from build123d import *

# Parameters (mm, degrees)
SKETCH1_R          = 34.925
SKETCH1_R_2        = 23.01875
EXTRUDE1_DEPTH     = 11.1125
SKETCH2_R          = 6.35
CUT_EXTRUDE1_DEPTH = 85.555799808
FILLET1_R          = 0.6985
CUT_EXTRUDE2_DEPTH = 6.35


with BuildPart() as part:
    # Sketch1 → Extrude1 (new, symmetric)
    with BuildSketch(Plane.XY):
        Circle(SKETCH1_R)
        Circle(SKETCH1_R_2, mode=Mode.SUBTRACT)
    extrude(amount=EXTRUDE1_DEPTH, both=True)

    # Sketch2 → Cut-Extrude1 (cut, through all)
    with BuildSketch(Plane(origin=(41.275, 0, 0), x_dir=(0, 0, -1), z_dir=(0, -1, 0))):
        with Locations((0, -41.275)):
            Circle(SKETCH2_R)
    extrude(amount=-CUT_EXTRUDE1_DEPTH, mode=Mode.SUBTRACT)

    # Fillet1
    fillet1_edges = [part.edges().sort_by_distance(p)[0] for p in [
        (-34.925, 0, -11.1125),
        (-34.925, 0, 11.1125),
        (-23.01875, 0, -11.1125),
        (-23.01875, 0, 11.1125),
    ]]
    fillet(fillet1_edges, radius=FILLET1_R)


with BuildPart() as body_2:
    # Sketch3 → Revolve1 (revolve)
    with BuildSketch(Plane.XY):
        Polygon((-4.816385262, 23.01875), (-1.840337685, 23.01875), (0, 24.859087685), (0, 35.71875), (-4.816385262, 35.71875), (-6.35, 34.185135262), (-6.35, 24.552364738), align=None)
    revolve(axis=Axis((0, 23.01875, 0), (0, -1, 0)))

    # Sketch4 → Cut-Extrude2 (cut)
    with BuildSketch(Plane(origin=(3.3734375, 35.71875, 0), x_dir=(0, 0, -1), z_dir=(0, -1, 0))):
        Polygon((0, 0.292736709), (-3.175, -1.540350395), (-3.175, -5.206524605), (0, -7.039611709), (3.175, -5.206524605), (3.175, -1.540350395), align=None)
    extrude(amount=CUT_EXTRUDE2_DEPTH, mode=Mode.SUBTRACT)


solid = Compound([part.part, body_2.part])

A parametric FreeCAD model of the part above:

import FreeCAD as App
import Part
import Sketcher
from FreeCAD import Vector
Q = App.Units.Quantity


def edges_at(feature, points):
    """Names of the edges that pass closest to the given points."""
    edges = feature.Shape.Edges
    near = lambda p: min(range(len(edges)), key=lambda i: edges[i].distToShape(Part.Vertex(*p))[0])
    return sorted({f"Edge{near(p) + 1}" for p in points})

doc = App.newDocument("Part")
body = doc.addObject("PartDesign::Body", "Body")

sketch1 = body.newObject("Sketcher::SketchObject", "Sketch")
sketch1.AttachmentSupport = (doc.getObject("XY_Plane"), [""])
sketch1.MapMode = "FlatFace"
sketch1.addGeometry(Part.Circle(Vector(0, 0, 0), Vector(0, 0, 1), 35), False)
sketch1.addGeometry(Part.Circle(Vector(0, 0, 0), Vector(0, 0, 1), 23), False)
sketch1.addConstraint(Sketcher.Constraint("Coincident", 0, 3, -1, 1))
sketch1.addConstraint(Sketcher.Constraint("Coincident", 1, 3, -1, 1))
sketch1.addConstraint(Sketcher.Constraint("Diameter", 0, Q("2.75 in")))
sketch1.addConstraint(Sketcher.Constraint("Diameter", 1, Q("1.8125 in")))
pad1 = body.newObject("PartDesign::Pad", "Pad")
pad1.Profile = sketch1
pad1.Length = Q("0.875 in")
pad1.Midplane = True

sketch2 = body.newObject("Sketcher::SketchObject", "Sketch001")
sketch2.AttachmentSupport = (doc.getObject("XZ_Plane"), [""])
sketch2.MapMode = "FlatFace"
sketch2.addGeometry(Part.Circle(Vector(0, 0, 0), Vector(0, 0, 1), 6), False)
sketch2.addConstraint(Sketcher.Constraint("Coincident", 0, 3, -1, 1))
sketch2.addConstraint(Sketcher.Constraint("Diameter", 0, Q("0.5 in")))
pocket1 = body.newObject("PartDesign::Pocket", "Pocket")
pocket1.Profile = sketch2
pocket1.Type = "ThroughAll"
doc.recompute()

fillet = body.newObject("PartDesign::Fillet", "Fillet")
fillet.Base = (pocket1, edges_at(pocket1, [
    (-34.925, 0, -11.113),
    (-34.925, 0, 11.113),
    (-23.019, 0, -11.113),
    (-23.019, 0, 11.113),
]))
fillet.Radius = Q("0.0275 in")
body2 = doc.addObject("PartDesign::Body", "Body001")

sketch3 = body2.newObject("Sketcher::SketchObject", "Sketch002")
sketch3.AttachmentSupport = (doc.getObject("XY_Plane001"), [""])
sketch3.MapMode = "FlatFace"
sketch3.addGeometry(Part.LineSegment(Vector(-4.8, 23, 0), Vector(-1.8, 23, 0)), False)
sketch3.addGeometry(Part.LineSegment(Vector(-1.8, 23, 0), Vector(0, 24.9, 0)), False)
sketch3.addGeometry(Part.LineSegment(Vector(0, 24.9, 0), Vector(0, 35.7, 0)), False)
sketch3.addGeometry(Part.LineSegment(Vector(0, 35.7, 0), Vector(-4.8, 35.7, 0)), False)
sketch3.addGeometry(Part.LineSegment(Vector(-4.8, 35.7, 0), Vector(-6.3, 34.2, 0)), False)
sketch3.addGeometry(Part.LineSegment(Vector(-6.3, 34.2, 0), Vector(-6.3, 24.6, 0)), False)
sketch3.addGeometry(Part.LineSegment(Vector(-6.3, 24.6, 0), Vector(-4.8, 23, 0)), False)
sketch3.addConstraint(Sketcher.Constraint("Coincident", 0, 2, 1, 1))
sketch3.addConstraint(Sketcher.Constraint("Coincident", 1, 2, 2, 1))
sketch3.addConstraint(Sketcher.Constraint("Coincident", 2, 2, 3, 1))
sketch3.addConstraint(Sketcher.Constraint("Coincident", 3, 2, 4, 1))
sketch3.addConstraint(Sketcher.Constraint("Coincident", 4, 2, 5, 1))
sketch3.addConstraint(Sketcher.Constraint("Coincident", 5, 2, 6, 1))
sketch3.addConstraint(Sketcher.Constraint("Coincident", 6, 2, 0, 1))
sketch3.addConstraint(Sketcher.Constraint("Horizontal", 0))
sketch3.addConstraint(Sketcher.Constraint("Vertical", 2))
sketch3.addConstraint(Sketcher.Constraint("Horizontal", 3))
sketch3.addConstraint(Sketcher.Constraint("Vertical", 5))
sketch3.addConstraint(Sketcher.Constraint("PointOnObject", 1, 2, -2))
sketch3.addConstraint(Sketcher.Constraint("Parallel", 1, 4))
sketch3.addConstraint(Sketcher.Constraint("Perpendicular", 4, 6))
sketch3.addConstraint(Sketcher.Constraint("Vertical", 3, 2, 6, 2))
sketch3.addConstraint(Sketcher.Constraint("Equal", 4, 6))
sketch3.addConstraint(Sketcher.Constraint("DistanceY", 0, 2, 2, 2, Q("0.5 in")))
sketch3.addConstraint(Sketcher.Constraint("DistanceX", 4, 2, -1, 1, Q("0.25 in")))
sketch3.addConstraint(Sketcher.Constraint("DistanceY", -1, 1, 0, 2, Q("0.90625 in")))
sketch3.addConstraint(Sketcher.Constraint("DistanceY", 5, 2, 5, 1, Q("9.632771 mm")))
sketch3.addConstraint(Sketcher.Constraint("Distance", 1, Q("2.602631 mm")))
revolution = body2.newObject("PartDesign::Revolution", "Revolution")
revolution.Profile = sketch3
revolution.ReferenceAxis = (sketch3, ["V_Axis"])
revolution.Angle = 360

sketch4 = body2.newObject("Sketcher::SketchObject", "Sketch003")
sketch4.AttachmentSupport = (doc.getObject("XZ_Plane001"), [""])
sketch4.MapMode = "FlatFace"
sketch4.AttachmentOffset = App.Placement(Vector(0, 0, -1.40625 * 25.4), App.Rotation())
sketch4.addGeometry(Part.LineSegment(Vector(3.7, 0, 0), Vector(1.8, 3.2, 0)), False)
sketch4.addGeometry(Part.LineSegment(Vector(1.8, 3.2, 0), Vector(-1.8, 3.2, 0)), False)
sketch4.addGeometry(Part.LineSegment(Vector(-1.8, 3.2, 0), Vector(-3.7, 0, 0)), False)
sketch4.addGeometry(Part.LineSegment(Vector(-3.7, 0, 0), Vector(-1.8, -3.2, 0)), False)
sketch4.addGeometry(Part.LineSegment(Vector(-1.8, -3.2, 0), Vector(1.8, -3.2, 0)), False)
sketch4.addGeometry(Part.LineSegment(Vector(1.8, -3.2, 0), Vector(3.7, 0, 0)), False)
sketch4.addConstraint(Sketcher.Constraint("Coincident", 0, 2, 1, 1))
sketch4.addConstraint(Sketcher.Constraint("Coincident", 1, 2, 2, 1))
sketch4.addConstraint(Sketcher.Constraint("Coincident", 2, 2, 3, 1))
sketch4.addConstraint(Sketcher.Constraint("Coincident", 3, 2, 4, 1))
sketch4.addConstraint(Sketcher.Constraint("Coincident", 4, 2, 5, 1))
sketch4.addConstraint(Sketcher.Constraint("Coincident", 5, 2, 0, 1))
sketch4.addConstraint(Sketcher.Constraint("Horizontal", 1))
sketch4.addConstraint(Sketcher.Constraint("Horizontal", 4))
sketch4.addConstraint(Sketcher.Constraint("Symmetric", 0, 2, 3, 2, -1, 1))
sketch4.addConstraint(Sketcher.Constraint("Symmetric", 2, 2, 5, 2, -1, 1))
sketch4.addConstraint(Sketcher.Constraint("PointOnObject", 2, 2, -1))
sketch4.addConstraint(Sketcher.Constraint("Parallel", 2, 5))
sketch4.addConstraint(Sketcher.Constraint("Vertical", 1, 2, 3, 2))
sketch4.addConstraint(Sketcher.Constraint("Angle", 0, Q("120 deg")))
sketch4.addConstraint(Sketcher.Constraint("DistanceY", 3, 2, 1, 2, Q("0.25 in")))
sketch4.addConstraint(Sketcher.Constraint("DistanceX", 1, 2, 1, 1, Q("3.666174 mm")))
pocket2 = body2.newObject("PartDesign::Pocket", "Pocket001")
pocket2.Profile = sketch4
pocket2.Length = Q("0.25 in")
pocket2.Reversed = True

doc.recompute()
